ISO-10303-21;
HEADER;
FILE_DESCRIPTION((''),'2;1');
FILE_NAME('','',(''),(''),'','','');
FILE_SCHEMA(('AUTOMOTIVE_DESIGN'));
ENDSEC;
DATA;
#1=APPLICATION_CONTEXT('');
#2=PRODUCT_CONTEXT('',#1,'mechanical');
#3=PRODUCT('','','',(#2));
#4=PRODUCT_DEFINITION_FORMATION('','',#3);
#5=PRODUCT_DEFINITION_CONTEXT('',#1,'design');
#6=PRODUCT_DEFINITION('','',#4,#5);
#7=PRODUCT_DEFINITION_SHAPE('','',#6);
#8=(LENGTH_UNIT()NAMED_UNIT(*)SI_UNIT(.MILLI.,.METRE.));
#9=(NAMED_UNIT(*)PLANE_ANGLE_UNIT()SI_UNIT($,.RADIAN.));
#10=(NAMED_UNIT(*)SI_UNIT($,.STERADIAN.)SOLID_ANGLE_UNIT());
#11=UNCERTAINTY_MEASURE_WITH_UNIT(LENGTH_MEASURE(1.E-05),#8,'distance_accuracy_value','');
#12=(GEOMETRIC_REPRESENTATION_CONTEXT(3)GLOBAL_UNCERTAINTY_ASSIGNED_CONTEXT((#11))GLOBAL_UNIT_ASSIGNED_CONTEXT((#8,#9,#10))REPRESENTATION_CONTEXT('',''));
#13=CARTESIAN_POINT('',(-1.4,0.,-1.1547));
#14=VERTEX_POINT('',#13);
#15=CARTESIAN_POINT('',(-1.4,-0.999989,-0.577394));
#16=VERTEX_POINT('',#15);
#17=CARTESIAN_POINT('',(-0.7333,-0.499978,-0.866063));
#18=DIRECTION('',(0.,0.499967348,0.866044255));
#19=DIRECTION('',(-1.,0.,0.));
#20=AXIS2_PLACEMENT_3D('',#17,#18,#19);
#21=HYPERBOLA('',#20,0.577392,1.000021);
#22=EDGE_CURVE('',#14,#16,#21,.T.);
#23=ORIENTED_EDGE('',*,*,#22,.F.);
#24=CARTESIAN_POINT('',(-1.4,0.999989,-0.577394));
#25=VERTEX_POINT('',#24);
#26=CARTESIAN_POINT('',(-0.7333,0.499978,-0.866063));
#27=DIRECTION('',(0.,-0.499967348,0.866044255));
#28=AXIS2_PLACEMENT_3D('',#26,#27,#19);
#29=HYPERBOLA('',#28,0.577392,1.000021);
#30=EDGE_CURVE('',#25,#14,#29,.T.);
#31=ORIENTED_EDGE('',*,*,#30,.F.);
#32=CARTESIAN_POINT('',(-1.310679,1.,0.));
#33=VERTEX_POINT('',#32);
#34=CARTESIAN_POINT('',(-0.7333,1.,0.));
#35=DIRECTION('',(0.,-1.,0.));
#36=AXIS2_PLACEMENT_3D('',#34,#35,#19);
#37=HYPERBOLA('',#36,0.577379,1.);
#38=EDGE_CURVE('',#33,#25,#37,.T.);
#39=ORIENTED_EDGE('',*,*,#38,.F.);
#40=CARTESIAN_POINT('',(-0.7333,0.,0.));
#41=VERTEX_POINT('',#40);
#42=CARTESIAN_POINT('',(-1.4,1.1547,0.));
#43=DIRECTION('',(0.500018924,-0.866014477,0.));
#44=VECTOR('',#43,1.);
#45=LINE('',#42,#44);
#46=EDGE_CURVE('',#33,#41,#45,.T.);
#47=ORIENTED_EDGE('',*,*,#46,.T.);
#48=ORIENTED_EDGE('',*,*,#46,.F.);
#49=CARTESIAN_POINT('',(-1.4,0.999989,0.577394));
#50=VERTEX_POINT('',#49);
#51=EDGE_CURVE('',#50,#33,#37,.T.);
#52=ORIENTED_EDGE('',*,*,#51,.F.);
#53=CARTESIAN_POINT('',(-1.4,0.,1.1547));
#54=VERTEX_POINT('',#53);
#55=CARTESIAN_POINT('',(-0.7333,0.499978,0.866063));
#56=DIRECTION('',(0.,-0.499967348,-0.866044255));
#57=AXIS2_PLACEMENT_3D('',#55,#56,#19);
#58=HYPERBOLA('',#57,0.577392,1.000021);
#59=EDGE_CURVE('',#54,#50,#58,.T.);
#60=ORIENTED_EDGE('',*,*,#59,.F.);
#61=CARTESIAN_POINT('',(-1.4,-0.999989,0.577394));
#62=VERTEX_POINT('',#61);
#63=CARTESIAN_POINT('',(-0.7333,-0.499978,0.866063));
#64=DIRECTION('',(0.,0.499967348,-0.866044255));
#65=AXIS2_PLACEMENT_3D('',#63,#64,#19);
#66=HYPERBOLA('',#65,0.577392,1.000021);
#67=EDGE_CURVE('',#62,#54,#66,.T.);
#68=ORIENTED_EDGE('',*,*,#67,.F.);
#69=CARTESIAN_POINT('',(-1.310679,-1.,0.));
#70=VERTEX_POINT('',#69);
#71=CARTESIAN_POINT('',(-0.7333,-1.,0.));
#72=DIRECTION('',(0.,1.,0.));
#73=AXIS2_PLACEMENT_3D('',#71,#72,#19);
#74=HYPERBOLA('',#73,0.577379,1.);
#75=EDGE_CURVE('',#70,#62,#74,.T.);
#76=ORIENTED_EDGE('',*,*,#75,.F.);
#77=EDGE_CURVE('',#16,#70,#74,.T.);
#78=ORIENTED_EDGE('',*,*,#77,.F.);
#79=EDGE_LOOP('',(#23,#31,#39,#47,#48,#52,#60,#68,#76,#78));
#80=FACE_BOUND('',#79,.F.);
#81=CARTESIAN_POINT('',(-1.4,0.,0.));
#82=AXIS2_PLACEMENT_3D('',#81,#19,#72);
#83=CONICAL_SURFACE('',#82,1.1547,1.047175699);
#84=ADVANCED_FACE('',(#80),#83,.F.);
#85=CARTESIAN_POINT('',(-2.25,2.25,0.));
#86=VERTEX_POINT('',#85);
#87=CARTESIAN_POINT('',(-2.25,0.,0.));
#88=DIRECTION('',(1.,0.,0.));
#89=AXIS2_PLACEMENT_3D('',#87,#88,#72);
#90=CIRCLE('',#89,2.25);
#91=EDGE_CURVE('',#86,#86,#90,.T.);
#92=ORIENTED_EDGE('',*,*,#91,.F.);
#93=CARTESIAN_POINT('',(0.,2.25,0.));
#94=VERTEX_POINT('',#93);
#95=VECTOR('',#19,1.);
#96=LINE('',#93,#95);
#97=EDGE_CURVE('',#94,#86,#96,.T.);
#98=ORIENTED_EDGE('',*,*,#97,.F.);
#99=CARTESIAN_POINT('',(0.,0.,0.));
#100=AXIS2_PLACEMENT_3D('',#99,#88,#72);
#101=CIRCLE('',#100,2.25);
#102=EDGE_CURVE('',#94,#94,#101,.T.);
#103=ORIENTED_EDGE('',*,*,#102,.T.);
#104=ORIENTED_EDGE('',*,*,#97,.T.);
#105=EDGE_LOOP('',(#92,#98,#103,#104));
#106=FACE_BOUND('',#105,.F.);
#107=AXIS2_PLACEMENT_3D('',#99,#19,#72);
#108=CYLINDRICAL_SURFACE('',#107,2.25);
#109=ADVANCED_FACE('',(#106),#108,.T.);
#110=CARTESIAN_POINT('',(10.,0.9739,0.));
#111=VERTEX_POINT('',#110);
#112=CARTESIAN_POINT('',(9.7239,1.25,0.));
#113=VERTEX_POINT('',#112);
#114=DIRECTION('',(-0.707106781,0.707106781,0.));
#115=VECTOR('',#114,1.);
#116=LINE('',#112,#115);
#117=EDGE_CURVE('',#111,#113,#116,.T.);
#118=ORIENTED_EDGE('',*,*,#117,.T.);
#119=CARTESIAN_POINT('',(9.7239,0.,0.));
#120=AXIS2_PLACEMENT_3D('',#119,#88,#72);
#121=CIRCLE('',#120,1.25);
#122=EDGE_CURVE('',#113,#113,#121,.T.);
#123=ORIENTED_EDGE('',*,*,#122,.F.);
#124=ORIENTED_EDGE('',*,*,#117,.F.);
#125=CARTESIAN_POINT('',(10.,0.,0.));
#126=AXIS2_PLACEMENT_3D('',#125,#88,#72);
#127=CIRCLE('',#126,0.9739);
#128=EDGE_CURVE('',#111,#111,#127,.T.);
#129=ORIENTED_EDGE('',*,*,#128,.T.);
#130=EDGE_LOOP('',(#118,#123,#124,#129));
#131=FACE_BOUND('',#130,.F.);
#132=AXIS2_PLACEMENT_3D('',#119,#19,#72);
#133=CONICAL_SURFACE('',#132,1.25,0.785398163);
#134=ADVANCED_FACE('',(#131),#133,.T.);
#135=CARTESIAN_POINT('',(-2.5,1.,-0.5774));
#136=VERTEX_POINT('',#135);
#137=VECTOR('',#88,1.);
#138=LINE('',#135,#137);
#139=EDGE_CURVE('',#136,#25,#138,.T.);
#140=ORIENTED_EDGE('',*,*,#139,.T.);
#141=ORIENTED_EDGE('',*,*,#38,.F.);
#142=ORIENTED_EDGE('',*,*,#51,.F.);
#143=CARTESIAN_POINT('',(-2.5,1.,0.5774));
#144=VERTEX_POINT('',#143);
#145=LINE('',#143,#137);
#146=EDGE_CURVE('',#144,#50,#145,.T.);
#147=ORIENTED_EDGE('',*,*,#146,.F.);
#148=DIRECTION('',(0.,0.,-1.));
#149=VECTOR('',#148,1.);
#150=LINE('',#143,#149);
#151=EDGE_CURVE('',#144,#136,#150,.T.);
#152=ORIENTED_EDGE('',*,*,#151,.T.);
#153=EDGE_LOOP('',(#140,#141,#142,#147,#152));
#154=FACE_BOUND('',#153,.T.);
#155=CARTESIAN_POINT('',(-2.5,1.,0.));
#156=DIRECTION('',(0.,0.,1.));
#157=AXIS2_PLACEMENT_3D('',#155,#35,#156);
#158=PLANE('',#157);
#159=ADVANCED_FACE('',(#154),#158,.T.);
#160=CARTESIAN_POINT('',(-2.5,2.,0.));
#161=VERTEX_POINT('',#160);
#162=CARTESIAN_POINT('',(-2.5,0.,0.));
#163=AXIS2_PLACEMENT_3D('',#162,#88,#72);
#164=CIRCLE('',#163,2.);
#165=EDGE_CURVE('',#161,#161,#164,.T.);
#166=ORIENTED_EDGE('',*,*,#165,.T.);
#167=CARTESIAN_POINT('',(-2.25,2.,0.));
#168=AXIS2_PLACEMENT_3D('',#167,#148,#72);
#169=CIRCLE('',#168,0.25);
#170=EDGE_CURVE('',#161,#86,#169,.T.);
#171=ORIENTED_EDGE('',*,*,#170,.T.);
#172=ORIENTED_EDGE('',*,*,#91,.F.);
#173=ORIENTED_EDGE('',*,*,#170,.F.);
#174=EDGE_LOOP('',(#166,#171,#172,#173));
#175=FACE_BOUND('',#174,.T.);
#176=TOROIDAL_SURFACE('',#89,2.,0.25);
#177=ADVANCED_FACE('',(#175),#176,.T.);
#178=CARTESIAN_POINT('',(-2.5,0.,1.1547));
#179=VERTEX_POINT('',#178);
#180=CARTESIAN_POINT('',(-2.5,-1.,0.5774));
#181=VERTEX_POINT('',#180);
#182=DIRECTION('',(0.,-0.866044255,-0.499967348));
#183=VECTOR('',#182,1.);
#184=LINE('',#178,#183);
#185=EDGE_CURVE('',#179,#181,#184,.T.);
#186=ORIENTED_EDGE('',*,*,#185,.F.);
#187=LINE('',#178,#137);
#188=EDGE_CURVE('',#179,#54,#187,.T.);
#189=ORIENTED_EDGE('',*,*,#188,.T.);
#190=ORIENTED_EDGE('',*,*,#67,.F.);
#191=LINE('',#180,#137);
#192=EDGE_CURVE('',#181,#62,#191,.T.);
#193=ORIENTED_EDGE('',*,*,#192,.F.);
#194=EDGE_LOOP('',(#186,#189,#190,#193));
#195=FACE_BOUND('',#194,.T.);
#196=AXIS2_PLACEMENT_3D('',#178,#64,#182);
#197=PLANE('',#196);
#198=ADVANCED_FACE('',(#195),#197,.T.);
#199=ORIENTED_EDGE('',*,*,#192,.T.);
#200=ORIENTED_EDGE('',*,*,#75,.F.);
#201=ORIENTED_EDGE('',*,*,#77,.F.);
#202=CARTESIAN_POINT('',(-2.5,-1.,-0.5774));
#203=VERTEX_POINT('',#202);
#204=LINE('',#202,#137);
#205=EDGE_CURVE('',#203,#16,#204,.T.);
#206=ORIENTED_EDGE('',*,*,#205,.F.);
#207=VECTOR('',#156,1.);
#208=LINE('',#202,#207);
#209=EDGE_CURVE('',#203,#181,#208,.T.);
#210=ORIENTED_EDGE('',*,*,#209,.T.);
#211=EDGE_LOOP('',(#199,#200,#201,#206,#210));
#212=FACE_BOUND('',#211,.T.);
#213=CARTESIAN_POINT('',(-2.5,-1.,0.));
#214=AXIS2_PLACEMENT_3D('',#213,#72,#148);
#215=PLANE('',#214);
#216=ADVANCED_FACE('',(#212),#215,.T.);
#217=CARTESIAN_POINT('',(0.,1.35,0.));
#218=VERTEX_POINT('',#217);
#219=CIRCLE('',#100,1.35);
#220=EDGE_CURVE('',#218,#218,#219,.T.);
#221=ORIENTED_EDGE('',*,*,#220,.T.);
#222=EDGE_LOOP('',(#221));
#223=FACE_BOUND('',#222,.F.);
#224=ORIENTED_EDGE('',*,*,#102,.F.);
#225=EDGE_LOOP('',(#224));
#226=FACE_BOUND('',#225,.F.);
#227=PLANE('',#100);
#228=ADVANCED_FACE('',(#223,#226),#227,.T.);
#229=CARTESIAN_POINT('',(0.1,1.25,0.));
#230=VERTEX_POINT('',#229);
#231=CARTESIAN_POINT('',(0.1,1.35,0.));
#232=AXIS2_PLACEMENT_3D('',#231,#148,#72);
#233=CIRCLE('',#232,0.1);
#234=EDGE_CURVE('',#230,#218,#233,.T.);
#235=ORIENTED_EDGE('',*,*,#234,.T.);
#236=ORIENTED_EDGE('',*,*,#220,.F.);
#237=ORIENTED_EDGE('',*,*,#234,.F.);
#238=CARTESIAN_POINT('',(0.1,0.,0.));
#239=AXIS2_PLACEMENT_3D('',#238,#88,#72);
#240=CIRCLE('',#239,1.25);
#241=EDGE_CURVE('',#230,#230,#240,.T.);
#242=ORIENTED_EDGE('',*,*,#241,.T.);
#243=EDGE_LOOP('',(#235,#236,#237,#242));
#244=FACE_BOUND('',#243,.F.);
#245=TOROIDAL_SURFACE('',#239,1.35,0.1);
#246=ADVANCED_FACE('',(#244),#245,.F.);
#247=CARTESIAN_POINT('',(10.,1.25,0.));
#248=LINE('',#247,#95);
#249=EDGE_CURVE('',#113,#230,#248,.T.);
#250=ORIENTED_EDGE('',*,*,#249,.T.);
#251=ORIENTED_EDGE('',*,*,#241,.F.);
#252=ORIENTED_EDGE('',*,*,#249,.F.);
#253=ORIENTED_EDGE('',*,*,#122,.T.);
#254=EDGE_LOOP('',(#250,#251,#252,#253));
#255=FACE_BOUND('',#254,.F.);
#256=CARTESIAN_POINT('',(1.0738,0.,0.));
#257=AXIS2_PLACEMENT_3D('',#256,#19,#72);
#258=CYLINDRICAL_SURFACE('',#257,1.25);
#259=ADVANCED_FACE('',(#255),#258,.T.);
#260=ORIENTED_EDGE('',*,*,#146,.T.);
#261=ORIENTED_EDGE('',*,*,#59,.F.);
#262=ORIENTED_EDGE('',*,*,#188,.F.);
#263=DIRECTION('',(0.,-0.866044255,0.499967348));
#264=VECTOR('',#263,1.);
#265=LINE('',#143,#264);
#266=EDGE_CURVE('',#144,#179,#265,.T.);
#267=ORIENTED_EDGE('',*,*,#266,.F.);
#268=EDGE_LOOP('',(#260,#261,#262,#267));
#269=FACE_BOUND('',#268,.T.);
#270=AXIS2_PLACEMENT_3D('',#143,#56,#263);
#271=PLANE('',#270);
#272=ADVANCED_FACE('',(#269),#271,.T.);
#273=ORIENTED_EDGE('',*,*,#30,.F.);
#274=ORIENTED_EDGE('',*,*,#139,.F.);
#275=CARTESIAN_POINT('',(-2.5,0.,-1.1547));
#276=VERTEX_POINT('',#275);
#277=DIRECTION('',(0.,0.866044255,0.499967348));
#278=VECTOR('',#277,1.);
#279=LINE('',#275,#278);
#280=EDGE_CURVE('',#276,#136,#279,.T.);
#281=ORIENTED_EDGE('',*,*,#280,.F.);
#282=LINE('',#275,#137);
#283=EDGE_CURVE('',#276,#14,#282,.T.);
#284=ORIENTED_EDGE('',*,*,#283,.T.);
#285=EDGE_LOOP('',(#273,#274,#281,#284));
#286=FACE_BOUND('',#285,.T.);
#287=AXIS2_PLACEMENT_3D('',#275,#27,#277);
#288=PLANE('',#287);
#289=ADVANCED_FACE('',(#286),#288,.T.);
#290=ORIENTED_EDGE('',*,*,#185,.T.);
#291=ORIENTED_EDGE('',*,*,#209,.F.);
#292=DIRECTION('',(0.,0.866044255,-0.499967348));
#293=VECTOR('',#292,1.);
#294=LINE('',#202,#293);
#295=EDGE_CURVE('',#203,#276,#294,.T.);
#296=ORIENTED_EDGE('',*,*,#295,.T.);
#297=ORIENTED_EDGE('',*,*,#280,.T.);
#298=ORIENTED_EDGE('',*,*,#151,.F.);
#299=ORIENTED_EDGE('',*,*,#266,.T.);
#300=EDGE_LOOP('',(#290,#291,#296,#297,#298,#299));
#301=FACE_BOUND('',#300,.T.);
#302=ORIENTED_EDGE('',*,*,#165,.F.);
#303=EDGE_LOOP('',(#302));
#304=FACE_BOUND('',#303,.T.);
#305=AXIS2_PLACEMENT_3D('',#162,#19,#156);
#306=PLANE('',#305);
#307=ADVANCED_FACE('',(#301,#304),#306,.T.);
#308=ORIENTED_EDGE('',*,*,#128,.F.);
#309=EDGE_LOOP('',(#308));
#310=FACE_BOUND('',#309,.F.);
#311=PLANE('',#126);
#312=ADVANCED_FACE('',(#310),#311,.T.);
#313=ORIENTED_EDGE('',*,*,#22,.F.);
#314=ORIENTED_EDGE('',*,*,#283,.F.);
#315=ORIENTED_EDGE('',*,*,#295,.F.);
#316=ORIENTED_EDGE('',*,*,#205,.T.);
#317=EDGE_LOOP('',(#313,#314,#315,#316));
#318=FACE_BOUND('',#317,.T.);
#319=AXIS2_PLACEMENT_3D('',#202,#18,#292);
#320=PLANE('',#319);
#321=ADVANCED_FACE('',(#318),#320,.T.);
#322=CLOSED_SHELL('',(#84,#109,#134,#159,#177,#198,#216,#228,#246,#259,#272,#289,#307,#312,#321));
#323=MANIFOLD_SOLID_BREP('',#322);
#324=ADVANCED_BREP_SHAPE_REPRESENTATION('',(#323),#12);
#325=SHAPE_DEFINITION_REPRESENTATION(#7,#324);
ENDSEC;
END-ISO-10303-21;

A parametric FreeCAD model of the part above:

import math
import FreeCAD as App
import Part
import Sketcher
from FreeCAD import Vector


def edges_at(feature, points):
    """Names of the edges that pass closest to the given points."""
    edges = feature.Shape.Edges
    near = lambda p: min(range(len(edges)), key=lambda i: edges[i].distToShape(Part.Vertex(*p))[0])
    return sorted({f"Edge{near(p) + 1}" for p in points})


def add_polygon(sketch, points):
    """Adds a closed chain of lines whose ends are joined by coincident constraints."""
    first, n = sketch.GeometryCount, len(points)
    for a, b in zip(points, points[1:] + points[:1]):
        sketch.addGeometry(Part.LineSegment(App.Vector(*a, 0), App.Vector(*b, 0)), False)
    for i in range(n):
        sketch.addConstraint(Sketcher.Constraint("Coincident", first + i, 2, first + (i + 1) % n, 1))

doc = App.newDocument("Part")
body = doc.addObject("PartDesign::Body", "Body")

# Sketch on XY plane
sketch1 = doc.addObject("Sketcher::SketchObject", "Sketch")
body.addObject(sketch1)
sketch1.AttachmentSupport = (doc.XY_Plane, [""])
sketch1.MapMode = "FlatFace"
add_polygon(sketch1, [(-1.4, 1.2), (-0.7, 0), (10, 0), (10, 1.2), (0, 1.2), (0, 2.2), (-2.5, 2.2), (-2.5, 1.2)])  # lines 0-7
sketch1.addConstraint([
    Sketcher.Constraint("Horizontal", 1),
    Sketcher.Constraint("Vertical", 2),
    Sketcher.Constraint("Horizontal", 3),
    Sketcher.Constraint("Vertical", 4),
    Sketcher.Constraint("Horizontal", 5),
    Sketcher.Constraint("Vertical", 6),
    Sketcher.Constraint("Horizontal", 7),
    Sketcher.Constraint("PointOnObject", 0, 2, -1),
    Sketcher.Constraint("PointOnObject", 3, 2, -2),
    Sketcher.Constraint("DistanceX", 3, 2, 3, 1, 10.0),
    Sketcher.Constraint("DistanceX", 5, 2, 5, 1, 2.5),
    Sketcher.Constraint("DistanceX", 7, 1, 7, 2, 1.1),
    Sketcher.Constraint("DistanceY", 4, 1, 4, 2, 1.0),
    Sketcher.Constraint("DistanceY", 2, 1, 2, 2, 1.25),
    Sketcher.Constraint("DistanceX", 1, 1, 1, 2, 10.7333),
    Sketcher.Constraint("DistanceY", 6, 2, 6, 1, 1.0953),
])
revolution = doc.addObject("PartDesign::Revolution", "Revolution")
body.addObject(revolution)
revolution.Profile = sketch1
revolution.ReferenceAxis = (sketch1, ["H_Axis"])
revolution.Angle = 360

# Sketch on YZ plane
sketch2 = doc.addObject("Sketcher::SketchObject", "Sketch001")
body.addObject(sketch2)
sketch2.AttachmentSupport = (doc.YZ_Plane, [""])
sketch2.MapMode = "FlatFace"
sketch2.AttachmentOffset = App.Placement(Vector(0, 0, -2.5), App.Rotation())
sketch2.addGeometry([
    Part.LineSegment(Vector(1, 0.6, 0), Vector(0, 1.2, 0)),  # 0
    Part.ArcOfCircle(Part.Circle(Vector(0, 0, 0), Vector(0, 0, 1), 1.2), math.radians(30), math.radians(90)),  # 1
    Part.ArcOfCircle(Part.Circle(Vector(0, 0, 0), Vector(0, 0, 1), 1.2), math.radians(90), math.radians(150)),  # 2
    Part.LineSegment(Vector(0, 1.2, 0), Vector(-1, 0.6, 0)),  # 3
    Part.ArcOfCircle(Part.Circle(Vector(0, 0, 0), Vector(0, 0, 1), 1.2), math.radians(-30), math.radians(30)),  # 4
    Part.LineSegment(Vector(1, 0.6, 0), Vector(1, -0.6, 0)),  # 5
    Part.LineSegment(Vector(-1, 0.6, 0), Vector(-1, -0.6, 0)),  # 6
    Part.ArcOfCircle(Part.Circle(Vector(0, 0, 0), Vector(0, 0, 1), 1.2), math.radians(150), math.radians(210)),  # 7
    Part.LineSegment(Vector(-1, -0.6, 0), Vector(0, -1.2, 0)),  # 8
    Part.ArcOfCircle(Part.Circle(Vector(0, 0, 0), Vector(0, 0, 1), 1.2), math.radians(-150), math.radians(-90)),  # 9
    Part.ArcOfCircle(Part.Circle(Vector(0, 0, 0), Vector(0, 0, 1), 1.2), math.radians(-90), math.radians(-30)),  # 10
    Part.LineSegment(Vector(0, -1.2, 0), Vector(1, -0.6, 0)),  # 11
], False)
sketch2.addConstraint([
    Sketcher.Constraint("Coincident", 0, 1, 1, 1),
    Sketcher.Constraint("Coincident", 1, 2, 0, 2),
    Sketcher.Constraint("Coincident", 2, 1, 3, 1),
    Sketcher.Constraint("Coincident", 3, 2, 2, 2),
    Sketcher.Constraint("Coincident", 4, 1, 5, 2),
    Sketcher.Constraint("Coincident", 5, 1, 4, 2),
    Sketcher.Constraint("Coincident", 6, 1, 7, 1),
    Sketcher.Constraint("Coincident", 7, 2, 6, 2),
    Sketcher.Constraint("Coincident", 8, 1, 9, 1),
    Sketcher.Constraint("Coincident", 9, 2, 8, 2),
    Sketcher.Constraint("Coincident", 10, 1, 11, 1),
    Sketcher.Constraint("Coincident", 11, 2, 10, 2),
    Sketcher.Constraint("Vertical", 5),
    Sketcher.Constraint("Vertical", 6),
    Sketcher.Constraint("Coincident", 1, 3, -1, 1),
    Sketcher.Constraint("Coincident", 2, 3, -1, 1),
    Sketcher.Constraint("Coincident", 4, 3, -1, 1),
    Sketcher.Constraint("Coincident", 7, 3, -1, 1),
    Sketcher.Constraint("Coincident", 9, 3, -1, 1),
    Sketcher.Constraint("Coincident", 10, 3, -1, 1),
    Sketcher.Constraint("Coincident", 2, 1, 1, 2),
    Sketcher.Constraint("Coincident", 5, 1, 0, 1),
    Sketcher.Constraint("Coincident", 6, 1, 3, 2),
    Sketcher.Constraint("Coincident", 8, 1, 7, 2),
    Sketcher.Constraint("Coincident", 10, 1, 9, 2),
    Sketcher.Constraint("PointOnObject", 1, 2, -2),
    Sketcher.Constraint("PointOnObject", 9, 2, -2),
    Sketcher.Constraint("Parallel", 0, 8),
    Sketcher.Constraint("Parallel", 3, 11),
    Sketcher.Constraint("DistanceX", -1, 1, 0, 1, 1.0),
    Sketcher.Constraint("Radius", 1, 1.1547),
])
pad1 = doc.addObject("PartDesign::Pad", "Pad")
body.addObject(pad1)
pad1.Profile = sketch2
pad1.Type = "UpToFirst"
doc.recompute()

fillet = doc.addObject("PartDesign::Fillet", "Fillet")
body.addObject(fillet)
fillet.Base = (pad1, edges_at(pad1, [(-2.5, -2.25, 0)]))
fillet.Radius = 0.25
doc.recompute()

chamfer = doc.addObject("PartDesign::Chamfer", "Chamfer")
body.addObject(chamfer)
chamfer.Base = (fillet, edges_at(fillet, [(10, -1.25, 0)]))
chamfer.ChamferType = "Two distances"
chamfer.Size = 0.2761
chamfer.Size2 = 0.2761
doc.recompute()

fillet2 = doc.addObject("PartDesign::Fillet", "Fillet001")
body.addObject(fillet2)
fillet2.Base = (chamfer, edges_at(chamfer, [(0, -1.25, 0)]))
fillet2.Radius = 0.1

doc.recompute()
